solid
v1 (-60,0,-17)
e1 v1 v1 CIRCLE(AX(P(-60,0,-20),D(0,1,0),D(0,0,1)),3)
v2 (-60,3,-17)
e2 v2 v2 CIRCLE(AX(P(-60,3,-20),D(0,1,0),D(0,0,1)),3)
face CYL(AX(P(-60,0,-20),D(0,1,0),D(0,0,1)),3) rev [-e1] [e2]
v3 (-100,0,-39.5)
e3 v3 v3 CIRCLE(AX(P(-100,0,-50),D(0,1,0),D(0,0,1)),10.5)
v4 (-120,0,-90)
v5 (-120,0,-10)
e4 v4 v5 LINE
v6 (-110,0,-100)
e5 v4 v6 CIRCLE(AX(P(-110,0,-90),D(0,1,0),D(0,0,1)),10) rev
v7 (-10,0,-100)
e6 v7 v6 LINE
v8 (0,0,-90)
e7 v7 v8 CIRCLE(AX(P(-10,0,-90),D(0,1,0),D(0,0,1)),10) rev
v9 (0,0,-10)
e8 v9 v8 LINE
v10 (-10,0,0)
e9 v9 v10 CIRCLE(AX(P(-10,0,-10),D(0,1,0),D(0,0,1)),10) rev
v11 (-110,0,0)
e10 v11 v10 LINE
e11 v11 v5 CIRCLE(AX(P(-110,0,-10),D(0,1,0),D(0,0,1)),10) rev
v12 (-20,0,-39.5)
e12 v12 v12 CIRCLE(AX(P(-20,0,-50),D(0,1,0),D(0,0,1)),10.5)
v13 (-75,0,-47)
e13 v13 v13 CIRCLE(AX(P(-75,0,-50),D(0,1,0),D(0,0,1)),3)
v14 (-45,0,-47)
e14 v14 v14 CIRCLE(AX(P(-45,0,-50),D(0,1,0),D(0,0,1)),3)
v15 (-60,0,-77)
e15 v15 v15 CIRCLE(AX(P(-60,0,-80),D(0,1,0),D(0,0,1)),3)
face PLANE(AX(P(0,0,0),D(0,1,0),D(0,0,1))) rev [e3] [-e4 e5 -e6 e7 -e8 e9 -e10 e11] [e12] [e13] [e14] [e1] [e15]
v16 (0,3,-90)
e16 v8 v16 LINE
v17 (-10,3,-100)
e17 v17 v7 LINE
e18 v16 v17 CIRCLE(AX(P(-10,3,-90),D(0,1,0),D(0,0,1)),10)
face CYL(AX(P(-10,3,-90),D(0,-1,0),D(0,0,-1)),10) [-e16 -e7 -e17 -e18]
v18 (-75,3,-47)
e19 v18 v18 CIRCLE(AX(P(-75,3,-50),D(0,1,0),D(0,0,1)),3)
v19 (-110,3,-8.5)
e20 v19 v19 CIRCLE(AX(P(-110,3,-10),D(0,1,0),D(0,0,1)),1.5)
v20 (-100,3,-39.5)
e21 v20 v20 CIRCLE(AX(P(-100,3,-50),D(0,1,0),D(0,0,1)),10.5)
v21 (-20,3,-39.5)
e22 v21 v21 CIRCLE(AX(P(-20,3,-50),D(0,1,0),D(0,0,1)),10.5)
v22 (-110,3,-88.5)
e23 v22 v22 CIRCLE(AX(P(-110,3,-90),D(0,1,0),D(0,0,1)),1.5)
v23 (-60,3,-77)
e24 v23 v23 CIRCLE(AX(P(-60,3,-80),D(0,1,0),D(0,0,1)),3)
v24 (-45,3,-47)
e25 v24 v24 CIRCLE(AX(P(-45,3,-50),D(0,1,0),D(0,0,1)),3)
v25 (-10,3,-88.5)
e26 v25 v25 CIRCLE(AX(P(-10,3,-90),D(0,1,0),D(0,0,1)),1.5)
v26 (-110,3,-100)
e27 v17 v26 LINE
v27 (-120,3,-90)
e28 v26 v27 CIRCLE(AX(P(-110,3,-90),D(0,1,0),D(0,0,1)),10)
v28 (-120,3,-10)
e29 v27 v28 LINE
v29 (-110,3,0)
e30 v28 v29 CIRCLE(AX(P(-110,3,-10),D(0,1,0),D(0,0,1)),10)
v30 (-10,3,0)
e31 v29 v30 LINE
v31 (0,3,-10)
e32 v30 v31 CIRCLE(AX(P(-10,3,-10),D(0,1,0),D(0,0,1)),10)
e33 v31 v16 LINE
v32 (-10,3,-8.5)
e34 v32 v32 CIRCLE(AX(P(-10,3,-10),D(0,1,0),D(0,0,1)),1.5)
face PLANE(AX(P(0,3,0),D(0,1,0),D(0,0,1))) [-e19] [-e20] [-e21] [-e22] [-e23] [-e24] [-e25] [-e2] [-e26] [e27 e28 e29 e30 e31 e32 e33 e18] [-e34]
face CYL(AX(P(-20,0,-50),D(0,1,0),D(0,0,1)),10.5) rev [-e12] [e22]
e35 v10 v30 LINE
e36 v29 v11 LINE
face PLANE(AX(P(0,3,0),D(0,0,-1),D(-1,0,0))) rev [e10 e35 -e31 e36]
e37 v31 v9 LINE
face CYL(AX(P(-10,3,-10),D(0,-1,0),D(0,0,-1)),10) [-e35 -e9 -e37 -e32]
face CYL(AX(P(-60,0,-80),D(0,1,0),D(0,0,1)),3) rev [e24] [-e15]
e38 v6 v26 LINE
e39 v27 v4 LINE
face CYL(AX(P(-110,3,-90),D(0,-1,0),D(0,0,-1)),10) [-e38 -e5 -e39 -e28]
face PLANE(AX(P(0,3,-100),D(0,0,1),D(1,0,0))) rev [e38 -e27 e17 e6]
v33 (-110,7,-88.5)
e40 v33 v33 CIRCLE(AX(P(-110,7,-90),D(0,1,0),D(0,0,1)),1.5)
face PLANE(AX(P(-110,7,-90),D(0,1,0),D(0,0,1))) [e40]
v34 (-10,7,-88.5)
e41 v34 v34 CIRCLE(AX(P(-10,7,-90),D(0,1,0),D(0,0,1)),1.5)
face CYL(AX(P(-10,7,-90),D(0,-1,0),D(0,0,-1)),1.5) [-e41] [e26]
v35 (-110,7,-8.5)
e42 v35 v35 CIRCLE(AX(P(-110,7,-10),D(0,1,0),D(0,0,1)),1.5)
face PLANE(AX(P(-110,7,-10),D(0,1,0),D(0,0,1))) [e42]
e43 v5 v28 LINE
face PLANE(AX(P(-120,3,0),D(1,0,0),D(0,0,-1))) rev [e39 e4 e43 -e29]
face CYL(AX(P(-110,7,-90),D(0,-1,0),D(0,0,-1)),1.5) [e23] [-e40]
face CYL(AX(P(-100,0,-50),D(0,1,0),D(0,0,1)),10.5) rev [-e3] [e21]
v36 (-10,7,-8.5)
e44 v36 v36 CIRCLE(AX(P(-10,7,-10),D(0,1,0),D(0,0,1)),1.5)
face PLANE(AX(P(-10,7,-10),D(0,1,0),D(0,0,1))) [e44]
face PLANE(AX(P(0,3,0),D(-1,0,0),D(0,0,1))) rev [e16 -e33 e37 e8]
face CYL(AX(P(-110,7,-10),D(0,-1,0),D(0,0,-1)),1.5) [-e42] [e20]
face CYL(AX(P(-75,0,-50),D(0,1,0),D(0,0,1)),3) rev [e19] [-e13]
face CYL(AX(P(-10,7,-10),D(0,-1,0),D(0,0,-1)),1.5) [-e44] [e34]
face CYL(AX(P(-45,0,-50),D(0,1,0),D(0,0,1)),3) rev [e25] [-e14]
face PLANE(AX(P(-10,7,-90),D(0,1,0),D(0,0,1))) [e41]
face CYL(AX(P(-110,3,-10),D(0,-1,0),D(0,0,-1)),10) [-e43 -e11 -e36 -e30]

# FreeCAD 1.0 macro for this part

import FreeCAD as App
import Part
import Sketcher
Q = App.Units.Quantity


def edges_at(feature, points):
    """Names of the edges that pass closest to the given points."""
    edges = feature.Shape.Edges
    near = lambda p: min(range(len(edges)), key=lambda i: edges[i].distToShape(Part.Vertex(*p))[0])
    return sorted({f"Edge{near(p) + 1}" for p in points})

doc = App.newDocument("Part")
body = doc.addObject("PartDesign::Body", "Body")

sketch1 = body.newObject("Sketcher::SketchObject", "Sketch")
sketch1.AttachmentSupport = (doc.getObject("XZ_Plane"), [""])
sketch1.MapMode = "FlatFace"
sketch1.addGeometry([
    Part.LineSegment(App.Vector(-120, -100, 0), App.Vector(-120, 0, 0)),
    Part.LineSegment(App.Vector(-120, 0, 0), App.Vector(0, 0, 0)),
    Part.LineSegment(App.Vector(0, 0, 0), App.Vector(0, -100, 0)),
    Part.LineSegment(App.Vector(0, -100, 0), App.Vector(-120, -100, 0)),
], False)
sketch1.addConstraint([
    Sketcher.Constraint("Coincident", 0, 2, 1, 1),
    Sketcher.Constraint("Coincident", 1, 2, 2, 1),
    Sketcher.Constraint("Coincident", 2, 2, 3, 1),
    Sketcher.Constraint("Coincident", 3, 2, 0, 1),
    Sketcher.Constraint("Vertical", 0),
    Sketcher.Constraint("Horizontal", 1),
    Sketcher.Constraint("Vertical", 2),
    Sketcher.Constraint("Horizontal", 3),
    Sketcher.Constraint("Coincident", 1, 2, -1, 1),
    Sketcher.Constraint("DistanceX", 1, 1, 1, 2, Q("120 mm")),
    Sketcher.Constraint("DistanceY", 0, 1, 0, 2, Q("100 mm")),
])
pad1 = body.newObject("PartDesign::Pad", "Pad")
pad1.Profile = sketch1
pad1.Length = 3
pad1.Reversed = True
doc.recompute()

fillet = body.newObject("PartDesign::Fillet", "Fillet")
fillet.Base = (pad1, edges_at(pad1, [
    (0, 1.5, 0),
    (-120, 1.5, 0),
    (-120, 1.5, -100),
    (0, 1.5, -100),
]))
fillet.Radius = 10

sketch2 = body.newObject("Sketcher::SketchObject", "Sketch001")
sketch2.AttachmentSupport = (doc.getObject("XZ_Plane"), [""])
sketch2.MapMode = "FlatFace"
sketch2.AttachmentOffset = App.Placement(App.Vector(0, 0, -3), App.Rotation())
sketch2.addGeometry([
    Part.Circle(App.Vector(-110, -90, 0), App.Vector(0, 0, 1), 1.5),
    Part.Circle(App.Vector(-10, -90, 0), App.Vector(0, 0, 1), 1.5),
    Part.Circle(App.Vector(-10, -10, 0), App.Vector(0, 0, 1), 1.5),
    Part.Circle(App.Vector(-110, -10, 0), App.Vector(0, 0, 1), 1.5),
], False)
sketch2.addConstraint([
    Sketcher.Constraint("Equal", 0, 1),
    Sketcher.Constraint("Equal", 1, 2),
    Sketcher.Constraint("Equal", 2, 3),
    Sketcher.Constraint("Horizontal", 0, 3, 1, 3),
    Sketcher.Constraint("Horizontal", 2, 3, 3, 3),
    Sketcher.Constraint("Vertical", 1, 3, 2, 3),
    Sketcher.Constraint("Vertical", 0, 3, 3, 3),
    Sketcher.Constraint("Diameter", 0, Q("3 mm")),
    Sketcher.Constraint("DistanceX", 0, 3, -1, 1, Q("110 mm")),
    Sketcher.Constraint("DistanceY", 0, 3, -1, 1, Q("90 mm")),
    Sketcher.Constraint("DistanceX", 1, 3, -1, 1, Q("10 mm")),
    Sketcher.Constraint("DistanceY", 2, 3, -1, 1, Q("10 mm")),
])
pad2 = body.newObject("PartDesign::Pad", "Pad001")
pad2.Profile = sketch2
pad2.Length = 4
pad2.Reversed = True

sketch3 = body.newObject("Sketcher::SketchObject", "Sketch002")
sketch3.AttachmentSupport = (doc.getObject("XZ_Plane"), [""])
sketch3.MapMode = "FlatFace"
sketch3.AttachmentOffset = App.Placement(App.Vector(0, 0, -3), App.Rotation())
sketch3.addGeometry([
    Part.Circle(App.Vector(-100, -50, 0), App.Vector(0, 0, 1), 10.5),
    Part.Circle(App.Vector(-20, -50, 0), App.Vector(0, 0, 1), 10.5),
    Part.Circle(App.Vector(-75, -50, 0), App.Vector(0, 0, 1), 3),
    Part.Circle(App.Vector(-45, -50, 0), App.Vector(0, 0, 1), 3),
    Part.Circle(App.Vector(-60, -80, 0), App.Vector(0, 0, 1), 3),
    Part.Circle(App.Vector(-60, -20, 0), App.Vector(0, 0, 1), 3),
], False)
sketch3.addConstraint([
    Sketcher.Constraint("Equal", 0, 1),
    Sketcher.Constraint("Equal", 2, 3),
    Sketcher.Constraint("Equal", 3, 4),
    Sketcher.Constraint("Equal", 4, 5),
    Sketcher.Constraint("Horizontal", 0, 3, 1, 3),
    Sketcher.Constraint("Horizontal", 1, 3, 2, 3),
    Sketcher.Constraint("Horizontal", 2, 3, 3, 3),
    Sketcher.Constraint("Vertical", 4, 3, 5, 3),
    Sketcher.Constraint("Diameter", 0, Q("21 mm")),
    Sketcher.Constraint("Diameter", 2, Q("6 mm")),
    Sketcher.Constraint("DistanceX", 0, 3, -1, 1, Q("100 mm")),
    Sketcher.Constraint("DistanceY", 0, 3, -1, 1, Q("50 mm")),
    Sketcher.Constraint("DistanceX", 1, 3, -1, 1, Q("20 mm")),
    Sketcher.Constraint("DistanceX", 2, 3, -1, 1, Q("75 mm")),
    Sketcher.Constraint("DistanceX", 3, 3, -1, 1, Q("45 mm")),
    Sketcher.Constraint("DistanceX", 4, 3, -1, 1, Q("60 mm")),
    Sketcher.Constraint("DistanceY", 4, 3, -1, 1, Q("80 mm")),
    Sketcher.Constraint("DistanceY", 5, 3, -1, 1, Q("20 mm")),
])
pocket1 = body.newObject("PartDesign::Pocket", "Pocket")
pocket1.Profile = sketch3
pocket1.Type = "ThroughAll"
pocket1.Reversed = True

doc.recompute()
